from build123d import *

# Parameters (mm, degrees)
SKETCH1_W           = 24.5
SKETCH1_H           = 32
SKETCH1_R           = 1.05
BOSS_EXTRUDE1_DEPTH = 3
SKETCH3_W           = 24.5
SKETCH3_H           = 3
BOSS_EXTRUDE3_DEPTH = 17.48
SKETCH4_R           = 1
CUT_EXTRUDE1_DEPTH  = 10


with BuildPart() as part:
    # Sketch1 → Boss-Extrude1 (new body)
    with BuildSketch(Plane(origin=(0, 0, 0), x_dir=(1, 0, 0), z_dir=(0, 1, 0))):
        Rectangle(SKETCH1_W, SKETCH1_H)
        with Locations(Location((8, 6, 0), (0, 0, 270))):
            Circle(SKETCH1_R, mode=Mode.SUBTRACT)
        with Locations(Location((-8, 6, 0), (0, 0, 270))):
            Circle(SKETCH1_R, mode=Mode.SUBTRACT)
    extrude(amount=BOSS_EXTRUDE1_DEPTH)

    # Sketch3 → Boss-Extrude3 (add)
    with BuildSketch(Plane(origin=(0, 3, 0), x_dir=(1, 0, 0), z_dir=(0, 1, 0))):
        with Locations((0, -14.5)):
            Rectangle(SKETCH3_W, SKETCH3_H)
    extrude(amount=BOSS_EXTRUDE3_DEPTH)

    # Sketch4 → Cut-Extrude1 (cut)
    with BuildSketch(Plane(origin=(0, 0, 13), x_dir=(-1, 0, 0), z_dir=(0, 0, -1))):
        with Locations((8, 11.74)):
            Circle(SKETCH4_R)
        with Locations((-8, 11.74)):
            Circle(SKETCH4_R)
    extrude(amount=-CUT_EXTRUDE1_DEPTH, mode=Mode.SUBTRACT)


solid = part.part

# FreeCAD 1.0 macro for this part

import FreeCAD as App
import Part
import Sketcher

doc = App.newDocument("Part")
body = doc.addObject("PartDesign::Body", "Body")

# Sketch on XZ plane
sketch1 = body.newObject("Sketcher::SketchObject", "Sketch")
sketch1.AttachmentSupport = (doc.getObject("XZ_Plane"), [""])
sketch1.MapMode = "FlatFace"
sketch1.addGeometry(Part.LineSegment(App.Vector(-12.2, -16, 0), App.Vector(-12.2, 16, 0)), False)
sketch1.addGeometry(Part.LineSegment(App.Vector(-12.2, 16, 0), App.Vector(12.2, 16, 0)), False)
sketch1.addGeometry(Part.LineSegment(App.Vector(12.2, 16, 0), App.Vector(12.2, -16, 0)), False)
sketch1.addGeometry(Part.LineSegment(App.Vector(12.2, -16, 0), App.Vector(-12.2, -16, 0)), False)
sketch1.addGeometry(Part.Circle(App.Vector(-8, -6, 0), App.Vector(0, 0, 1), 1.1), False)
sketch1.addGeometry(Part.Circle(App.Vector(8, -6, 0), App.Vector(0, 0, 1), 1.1), False)
sketch1.addConstraint(Sketcher.Constraint("Coincident", 0, 2, 1, 1))
sketch1.addConstraint(Sketcher.Constraint("Coincident", 1, 2, 2, 1))
sketch1.addConstraint(Sketcher.Constraint("Coincident", 2, 2, 3, 1))
sketch1.addConstraint(Sketcher.Constraint("Coincident", 3, 2, 0, 1))
sketch1.addConstraint(Sketcher.Constraint("Vertical", 0))
sketch1.addConstraint(Sketcher.Constraint("Horizontal", 1))
sketch1.addConstraint(Sketcher.Constraint("Vertical", 2))
sketch1.addConstraint(Sketcher.Constraint("Horizontal", 3))
sketch1.addConstraint(Sketcher.Constraint("Equal", 4, 5))
sketch1.addConstraint(Sketcher.Constraint("Symmetric", 0, 2, 2, 2, -1, 1))
sketch1.addConstraint(Sketcher.Constraint("Symmetric", 4, 3, 5, 3, -2))
sketch1.addConstraint(Sketcher.Constraint("Diameter", 4, 2.1))
sketch1.addConstraint(Sketcher.Constraint("DistanceY", 0, 1, 0, 2, 32.0))
sketch1.addConstraint(Sketcher.Constraint("DistanceX", 1, 1, 1, 2, 24.5))
sketch1.addConstraint(Sketcher.Constraint("DistanceX", 4, 3, -1, 1, 8.0))
sketch1.addConstraint(Sketcher.Constraint("DistanceY", 4, 3, -1, 1, 6.0))
pad1 = body.newObject("PartDesign::Pad", "Pad")
pad1.Profile = sketch1
pad1.Length = 3
pad1.Reversed = True

# Sketch on XZ plane
sketch2 = body.newObject("Sketcher::SketchObject", "Sketch001")
sketch2.AttachmentSupport = (doc.getObject("XZ_Plane"), [""])
sketch2.MapMode = "FlatFace"
sketch2.AttachmentOffset = App.Placement(App.Vector(0, 0, -3), App.Rotation())
sketch2.addGeometry(Part.LineSegment(App.Vector(-12.2, 13, 0), App.Vector(-12.2, 16, 0)), False)
sketch2.addGeometry(Part.LineSegment(App.Vector(-12.2, 16, 0), App.Vector(12.2, 16, 0)), False)
sketch2.addGeometry(Part.LineSegment(App.Vector(12.2, 16, 0), App.Vector(12.2, 13, 0)), False)
sketch2.addGeometry(Part.LineSegment(App.Vector(12.2, 13, 0), App.Vector(-12.2, 13, 0)), False)
sketch2.addConstraint(Sketcher.Constraint("Coincident", 0, 2, 1, 1))
sketch2.addConstraint(Sketcher.Constraint("Coincident", 1, 2, 2, 1))
sketch2.addConstraint(Sketcher.Constraint("Coincident", 2, 2, 3, 1))
sketch2.addConstraint(Sketcher.Constraint("Coincident", 3, 2, 0, 1))
sketch2.addConstraint(Sketcher.Constraint("Vertical", 0))
sketch2.addConstraint(Sketcher.Constraint("Horizontal", 1))
sketch2.addConstraint(Sketcher.Constraint("Vertical", 2))
sketch2.addConstraint(Sketcher.Constraint("Horizontal", 3))
sketch2.addConstraint(Sketcher.Constraint("DistanceY", 0, 1, 0, 2, 3.0))
sketch2.addConstraint(Sketcher.Constraint("DistanceX", 1, 1, 1, 2, 24.5))
sketch2.addConstraint(Sketcher.Constraint("DistanceY", -1, 1, 0, 2, 16.0))
sketch2.addConstraint(Sketcher.Constraint("DistanceX", 0, 2, -1, 1, 12.25))
pad2 = body.newObject("PartDesign::Pad", "Pad001")
pad2.Profile = sketch2
pad2.Length = 17.48
pad2.Reversed = True

# Sketch on XY plane
sketch3 = body.newObject("Sketcher::SketchObject", "Sketch002")
sketch3.AttachmentSupport = (doc.getObject("XY_Plane"), [""])
sketch3.MapMode = "FlatFace"
sketch3.AttachmentOffset = App.Placement(App.Vector(0, 0, 13), App.Rotation())
sketch3.addGeometry(Part.Circle(App.Vector(-8, 11.7, 0), App.Vector(0, 0, 1), 1), False)
sketch3.addGeometry(Part.Circle(App.Vector(8, 11.7, 0), App.Vector(0, 0, 1), 1), False)
sketch3.addConstraint(Sketcher.Constraint("Equal", 0, 1))
sketch3.addConstraint(Sketcher.Constraint("Symmetric", 0, 3, 1, 3, -2))
sketch3.addConstraint(Sketcher.Constraint("Diameter", 0, 2.0))
sketch3.addConstraint(Sketcher.Constraint("DistanceX", 0, 3, -1, 1, 8.0))
sketch3.addConstraint(Sketcher.Constraint("DistanceY", -1, 1, 0, 3, 11.74))
pocket1 = body.newObject("PartDesign::Pocket", "Pocket")
pocket1.Profile = sketch3
pocket1.Length = 10
pocket1.Reversed = True

doc.recompute()
